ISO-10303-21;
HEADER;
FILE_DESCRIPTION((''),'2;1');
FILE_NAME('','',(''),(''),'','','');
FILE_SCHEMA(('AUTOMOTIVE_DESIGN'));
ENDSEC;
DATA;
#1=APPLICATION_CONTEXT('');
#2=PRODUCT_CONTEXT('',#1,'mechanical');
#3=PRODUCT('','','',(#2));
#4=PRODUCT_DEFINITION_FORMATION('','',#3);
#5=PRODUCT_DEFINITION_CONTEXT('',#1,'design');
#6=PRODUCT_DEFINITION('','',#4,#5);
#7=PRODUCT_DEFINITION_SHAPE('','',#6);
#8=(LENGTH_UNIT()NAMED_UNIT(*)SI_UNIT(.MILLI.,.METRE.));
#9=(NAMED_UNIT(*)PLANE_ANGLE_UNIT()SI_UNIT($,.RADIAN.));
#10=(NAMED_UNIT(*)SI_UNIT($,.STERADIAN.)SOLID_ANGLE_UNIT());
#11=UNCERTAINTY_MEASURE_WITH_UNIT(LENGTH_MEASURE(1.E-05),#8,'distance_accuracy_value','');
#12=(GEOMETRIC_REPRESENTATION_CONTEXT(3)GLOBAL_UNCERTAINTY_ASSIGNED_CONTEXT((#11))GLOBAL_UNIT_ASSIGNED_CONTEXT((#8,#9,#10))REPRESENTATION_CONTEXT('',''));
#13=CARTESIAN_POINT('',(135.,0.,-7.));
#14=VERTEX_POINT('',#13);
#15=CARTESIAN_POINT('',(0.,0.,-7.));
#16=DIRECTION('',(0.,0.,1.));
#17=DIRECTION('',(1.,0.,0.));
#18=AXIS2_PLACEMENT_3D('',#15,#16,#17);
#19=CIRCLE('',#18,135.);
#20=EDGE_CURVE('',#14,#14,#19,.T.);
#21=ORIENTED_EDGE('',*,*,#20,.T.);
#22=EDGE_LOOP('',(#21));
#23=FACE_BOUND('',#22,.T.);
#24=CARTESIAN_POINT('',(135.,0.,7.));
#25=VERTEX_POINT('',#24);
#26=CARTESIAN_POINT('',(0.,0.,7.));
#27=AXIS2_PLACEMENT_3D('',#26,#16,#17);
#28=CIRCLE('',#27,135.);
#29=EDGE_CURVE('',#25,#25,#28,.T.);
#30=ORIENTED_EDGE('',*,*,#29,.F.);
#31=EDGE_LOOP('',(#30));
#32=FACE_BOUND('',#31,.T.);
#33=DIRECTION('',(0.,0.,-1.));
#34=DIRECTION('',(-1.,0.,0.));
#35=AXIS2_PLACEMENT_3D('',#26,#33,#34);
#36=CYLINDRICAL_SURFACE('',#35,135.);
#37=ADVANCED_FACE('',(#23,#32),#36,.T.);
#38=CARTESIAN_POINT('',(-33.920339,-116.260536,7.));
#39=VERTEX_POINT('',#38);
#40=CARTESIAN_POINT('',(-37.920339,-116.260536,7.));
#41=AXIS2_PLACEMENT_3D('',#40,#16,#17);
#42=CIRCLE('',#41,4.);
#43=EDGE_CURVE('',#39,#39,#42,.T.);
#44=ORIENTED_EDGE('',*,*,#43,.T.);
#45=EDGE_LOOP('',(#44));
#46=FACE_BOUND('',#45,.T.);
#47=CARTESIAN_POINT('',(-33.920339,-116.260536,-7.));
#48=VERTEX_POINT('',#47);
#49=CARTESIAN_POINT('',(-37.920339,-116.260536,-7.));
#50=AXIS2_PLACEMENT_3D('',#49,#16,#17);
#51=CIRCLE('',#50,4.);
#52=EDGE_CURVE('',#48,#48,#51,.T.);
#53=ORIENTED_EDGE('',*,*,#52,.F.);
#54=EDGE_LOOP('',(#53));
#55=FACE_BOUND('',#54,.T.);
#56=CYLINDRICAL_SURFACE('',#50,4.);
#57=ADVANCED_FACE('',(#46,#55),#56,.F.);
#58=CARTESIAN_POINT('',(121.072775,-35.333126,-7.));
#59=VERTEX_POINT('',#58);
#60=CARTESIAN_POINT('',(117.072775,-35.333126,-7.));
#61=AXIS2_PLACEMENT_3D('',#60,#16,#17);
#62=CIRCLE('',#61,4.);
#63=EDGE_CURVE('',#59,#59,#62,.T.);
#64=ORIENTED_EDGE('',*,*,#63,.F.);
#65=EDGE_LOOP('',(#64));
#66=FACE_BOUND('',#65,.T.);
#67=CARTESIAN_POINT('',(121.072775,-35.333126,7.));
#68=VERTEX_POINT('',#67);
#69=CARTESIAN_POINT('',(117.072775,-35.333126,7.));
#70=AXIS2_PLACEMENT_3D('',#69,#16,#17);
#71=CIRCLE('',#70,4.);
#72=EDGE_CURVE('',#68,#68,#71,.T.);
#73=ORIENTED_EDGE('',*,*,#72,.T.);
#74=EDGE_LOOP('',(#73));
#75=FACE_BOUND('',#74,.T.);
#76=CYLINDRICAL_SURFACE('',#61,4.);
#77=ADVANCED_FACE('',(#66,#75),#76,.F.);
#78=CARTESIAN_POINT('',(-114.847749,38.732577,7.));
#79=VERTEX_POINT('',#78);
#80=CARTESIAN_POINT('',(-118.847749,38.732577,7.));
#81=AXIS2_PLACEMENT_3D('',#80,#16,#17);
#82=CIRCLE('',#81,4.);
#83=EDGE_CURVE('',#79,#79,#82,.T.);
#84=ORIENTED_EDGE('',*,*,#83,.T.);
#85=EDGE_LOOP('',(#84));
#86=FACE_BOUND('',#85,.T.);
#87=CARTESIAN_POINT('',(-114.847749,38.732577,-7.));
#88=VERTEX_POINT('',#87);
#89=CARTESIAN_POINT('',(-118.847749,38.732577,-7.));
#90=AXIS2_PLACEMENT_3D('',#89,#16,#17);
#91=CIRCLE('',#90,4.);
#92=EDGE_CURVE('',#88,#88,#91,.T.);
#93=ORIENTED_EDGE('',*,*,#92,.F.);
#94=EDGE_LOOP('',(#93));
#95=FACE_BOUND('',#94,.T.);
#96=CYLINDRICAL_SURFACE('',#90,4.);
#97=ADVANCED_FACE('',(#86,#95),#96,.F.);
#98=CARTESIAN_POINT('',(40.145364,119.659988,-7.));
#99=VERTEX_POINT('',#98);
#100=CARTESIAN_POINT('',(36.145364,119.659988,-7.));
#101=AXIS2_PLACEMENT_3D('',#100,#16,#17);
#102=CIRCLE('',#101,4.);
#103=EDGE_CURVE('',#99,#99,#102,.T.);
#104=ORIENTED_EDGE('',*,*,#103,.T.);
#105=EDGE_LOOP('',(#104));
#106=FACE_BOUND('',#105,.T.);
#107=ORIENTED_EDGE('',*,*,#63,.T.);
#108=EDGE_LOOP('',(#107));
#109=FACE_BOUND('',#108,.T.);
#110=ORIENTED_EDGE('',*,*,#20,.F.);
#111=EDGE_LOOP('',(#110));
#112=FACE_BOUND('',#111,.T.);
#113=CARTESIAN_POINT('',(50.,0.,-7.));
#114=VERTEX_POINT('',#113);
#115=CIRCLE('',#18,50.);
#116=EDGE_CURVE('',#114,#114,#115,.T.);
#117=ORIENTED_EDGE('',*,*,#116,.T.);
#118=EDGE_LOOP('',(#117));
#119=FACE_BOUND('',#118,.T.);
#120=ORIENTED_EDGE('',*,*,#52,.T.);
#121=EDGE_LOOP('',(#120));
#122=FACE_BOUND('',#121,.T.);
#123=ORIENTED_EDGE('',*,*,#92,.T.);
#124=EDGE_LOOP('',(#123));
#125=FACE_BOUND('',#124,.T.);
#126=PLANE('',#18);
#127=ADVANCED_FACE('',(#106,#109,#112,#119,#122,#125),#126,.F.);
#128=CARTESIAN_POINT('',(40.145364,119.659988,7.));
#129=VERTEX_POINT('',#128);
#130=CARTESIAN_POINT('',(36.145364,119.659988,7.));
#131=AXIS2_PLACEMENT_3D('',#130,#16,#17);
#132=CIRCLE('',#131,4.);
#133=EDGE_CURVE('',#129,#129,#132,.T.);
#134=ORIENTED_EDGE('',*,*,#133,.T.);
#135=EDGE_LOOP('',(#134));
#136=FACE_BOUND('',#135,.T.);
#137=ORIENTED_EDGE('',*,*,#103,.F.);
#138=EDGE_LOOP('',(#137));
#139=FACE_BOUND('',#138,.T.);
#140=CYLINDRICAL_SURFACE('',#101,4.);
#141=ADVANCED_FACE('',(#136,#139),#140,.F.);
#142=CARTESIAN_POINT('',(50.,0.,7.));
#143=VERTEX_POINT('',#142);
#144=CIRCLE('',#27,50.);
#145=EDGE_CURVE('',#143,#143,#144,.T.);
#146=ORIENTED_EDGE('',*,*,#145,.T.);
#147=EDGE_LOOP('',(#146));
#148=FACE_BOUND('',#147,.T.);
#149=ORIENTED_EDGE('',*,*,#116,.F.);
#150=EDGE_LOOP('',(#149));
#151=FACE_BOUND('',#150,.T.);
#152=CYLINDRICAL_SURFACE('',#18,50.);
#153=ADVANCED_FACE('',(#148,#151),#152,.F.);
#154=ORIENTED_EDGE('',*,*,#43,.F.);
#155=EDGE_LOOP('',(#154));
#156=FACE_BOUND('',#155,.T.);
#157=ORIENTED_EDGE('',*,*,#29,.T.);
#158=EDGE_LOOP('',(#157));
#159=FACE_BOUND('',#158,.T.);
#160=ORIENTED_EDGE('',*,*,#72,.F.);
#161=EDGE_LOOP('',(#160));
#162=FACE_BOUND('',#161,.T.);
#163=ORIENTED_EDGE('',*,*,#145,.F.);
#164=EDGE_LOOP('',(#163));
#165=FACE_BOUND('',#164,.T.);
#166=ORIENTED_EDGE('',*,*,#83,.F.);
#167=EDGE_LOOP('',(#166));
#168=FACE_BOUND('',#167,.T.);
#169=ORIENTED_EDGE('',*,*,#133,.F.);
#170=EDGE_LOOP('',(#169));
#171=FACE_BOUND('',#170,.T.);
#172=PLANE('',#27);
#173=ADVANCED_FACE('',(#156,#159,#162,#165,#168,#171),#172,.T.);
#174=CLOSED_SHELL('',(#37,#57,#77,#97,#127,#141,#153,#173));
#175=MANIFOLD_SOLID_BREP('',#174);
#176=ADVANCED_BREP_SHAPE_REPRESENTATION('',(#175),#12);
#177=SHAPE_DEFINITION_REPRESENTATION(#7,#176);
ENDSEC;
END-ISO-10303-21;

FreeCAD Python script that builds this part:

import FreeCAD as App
import Part
import Sketcher

V = App.Vector
Q = App.Units.Quantity

doc = App.newDocument("Part")
params = doc.addObject("Spreadsheet::Sheet", "Params")
for row, (alias, value) in enumerate([
    ("sketch1_diameter", "270 mm"),
    ("pad1_length", "14 mm"),
    ("sketch2_diameter", "100 mm"),
    ("sketch2_diameter2", "8 mm"),
], start=1):
    params.set(f"A{row}", alias)
    params.set(f"B{row}", "=" + value)
    params.setAlias(f"B{row}", alias)

body = doc.addObject("PartDesign::Body", "Body")

# Sketch on XY plane
sketch1 = body.newObject("Sketcher::SketchObject", "Sketch")
sketch1.AttachmentSupport = (doc.getObject("XY_Plane"), [""])
sketch1.MapMode = "FlatFace"
sketch1.addGeometry(Part.Circle(V(0, 0, 0), V(0, 0, 1), 135), False)
sketch1.addConstraint(Sketcher.Constraint("Coincident", 0, 3, -1, 1))
sketch1.addConstraint(Sketcher.Constraint("Diameter", 0, Q("270 mm")))
sketch1.setExpression("Constraints[1]", "Params.sketch1_diameter")
pad1 = body.newObject("PartDesign::Pad", "Pad")
pad1.Profile = sketch1
pad1.setExpression("Length", "Params.pad1_length")
pad1.Midplane = True

# Sketch on XY plane
sketch2 = body.newObject("Sketcher::SketchObject", "Sketch001")
sketch2.AttachmentSupport = (doc.getObject("XY_Plane"), [""])
sketch2.MapMode = "FlatFace"
sketch2.AttachmentOffset = App.Placement(V(0, 0, 7), App.Rotation())
sketch2.addGeometry(Part.Circle(V(0, 0, 0), V(0, 0, 1), 50), False)
sketch2.addGeometry(Part.Circle(V(-118.8, 38.7, 0), V(0, 0, 1), 4), False)
sketch2.addGeometry(Part.Circle(V(36.1, 119.7, 0), V(0, 0, 1), 4), False)
sketch2.addGeometry(Part.Circle(V(117.1, -35.3, 0), V(0, 0, 1), 4), False)
sketch2.addGeometry(Part.Circle(V(-37.9, -116.3, 0), V(0, 0, 1), 4), False)
sketch2.addConstraint(Sketcher.Constraint("Coincident", 0, 3, -1, 1))
sketch2.addConstraint(Sketcher.Constraint("Equal", 1, 2))
sketch2.addConstraint(Sketcher.Constraint("Equal", 2, 3))
sketch2.addConstraint(Sketcher.Constraint("Equal", 3, 4))
sketch2.addConstraint(Sketcher.Constraint("Diameter", 0, Q("100 mm")))
sketch2.addConstraint(Sketcher.Constraint("Diameter", 1, Q("8 mm")))
sketch2.addConstraint(Sketcher.Constraint("DistanceX", 1, 3, -1, 1, Q("118.847749 mm")))
sketch2.addConstraint(Sketcher.Constraint("DistanceX", 4, 3, -1, 1, Q("37.920339 mm")))
sketch2.addConstraint(Sketcher.Constraint("DistanceY", 1, 3, 2, 3, Q("80.92741 mm")))
sketch2.addConstraint(Sketcher.Constraint("DistanceX", 2, 3, 3, 3, Q("80.92741 mm")))
sketch2.addConstraint(Sketcher.Constraint("DistanceY", 4, 3, 3, 3, Q("80.92741 mm")))
sketch2.addConstraint(Sketcher.Constraint("DistanceY", -1, 1, 1, 3, Q("38.732577 mm")))
sketch2.addConstraint(Sketcher.Constraint("DistanceX", -1, 1, 2, 3, Q("36.145364 mm")))
sketch2.addConstraint(Sketcher.Constraint("DistanceY", 3, 3, -1, 1, Q("35.333126 mm")))
sketch2.setExpression("Constraints[4]", "Params.sketch2_diameter")
sketch2.setExpression("Constraints[5]", "Params.sketch2_diameter2")
pocket1 = body.newObject("PartDesign::Pocket", "Pocket")
pocket1.Profile = sketch2
pocket1.Type = "ThroughAll"

doc.recompute()
